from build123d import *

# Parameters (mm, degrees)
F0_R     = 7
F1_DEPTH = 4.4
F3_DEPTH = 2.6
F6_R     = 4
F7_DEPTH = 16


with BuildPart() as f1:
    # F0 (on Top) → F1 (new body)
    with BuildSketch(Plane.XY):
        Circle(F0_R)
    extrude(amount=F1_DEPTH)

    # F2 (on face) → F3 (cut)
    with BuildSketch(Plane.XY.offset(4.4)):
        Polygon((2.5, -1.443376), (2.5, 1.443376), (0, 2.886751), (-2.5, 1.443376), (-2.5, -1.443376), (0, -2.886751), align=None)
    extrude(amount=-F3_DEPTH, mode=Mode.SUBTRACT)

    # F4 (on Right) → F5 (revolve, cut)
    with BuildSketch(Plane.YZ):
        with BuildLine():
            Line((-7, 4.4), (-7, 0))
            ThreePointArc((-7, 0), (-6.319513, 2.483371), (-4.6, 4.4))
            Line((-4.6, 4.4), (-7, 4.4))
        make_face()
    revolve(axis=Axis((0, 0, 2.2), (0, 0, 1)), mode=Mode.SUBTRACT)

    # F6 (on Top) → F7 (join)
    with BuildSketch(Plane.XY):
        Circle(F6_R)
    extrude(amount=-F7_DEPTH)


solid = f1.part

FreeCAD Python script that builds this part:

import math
import FreeCAD as App
import Part
import Sketcher

V = App.Vector
Q = App.Units.Quantity

doc = App.newDocument("Part")
body = doc.addObject("PartDesign::Body", "Body")

# Sketch on XY plane
sketch1 = body.newObject("Sketcher::SketchObject", "Sketch")
sketch1.AttachmentSupport = (doc.getObject("XY_Plane"), [""])
sketch1.MapMode = "FlatFace"
sketch1.addGeometry(Part.Circle(V(0, 0, 0), V(0, 0, 1), 7), False)
sketch1.addConstraint(Sketcher.Constraint("Coincident", 0, 3, -1, 1))
sketch1.addConstraint(Sketcher.Constraint("Diameter", 0, Q("14 mm")))
pad1 = body.newObject("PartDesign::Pad", "Pad")
pad1.Profile = sketch1
pad1.Length = 4.4

# Sketch on XY plane
sketch2 = body.newObject("Sketcher::SketchObject", "Sketch001")
sketch2.AttachmentSupport = (doc.getObject("XY_Plane"), [""])
sketch2.MapMode = "FlatFace"
sketch2.AttachmentOffset = App.Placement(V(0, 0, 4.4), App.Rotation())
sketch2.addGeometry(Part.LineSegment(V(2.5, -1.4, 0), V(2.5, 1.4, 0)), False)
sketch2.addGeometry(Part.LineSegment(V(2.5, 1.4, 0), V(0, 2.9, 0)), False)
sketch2.addGeometry(Part.LineSegment(V(0, 2.9, 0), V(-2.5, 1.4, 0)), False)
sketch2.addGeometry(Part.LineSegment(V(-2.5, 1.4, 0), V(-2.5, -1.4, 0)), False)
sketch2.addGeometry(Part.LineSegment(V(-2.5, -1.4, 0), V(0, -2.9, 0)), False)
sketch2.addGeometry(Part.LineSegment(V(0, -2.9, 0), V(2.5, -1.4, 0)), False)
sketch2.addConstraint(Sketcher.Constraint("Coincident", 0, 2, 1, 1))
sketch2.addConstraint(Sketcher.Constraint("Coincident", 1, 2, 2, 1))
sketch2.addConstraint(Sketcher.Constraint("Coincident", 2, 2, 3, 1))
sketch2.addConstraint(Sketcher.Constraint("Coincident", 3, 2, 4, 1))
sketch2.addConstraint(Sketcher.Constraint("Coincident", 4, 2, 5, 1))
sketch2.addConstraint(Sketcher.Constraint("Coincident", 5, 2, 0, 1))
sketch2.addConstraint(Sketcher.Constraint("Vertical", 0))
sketch2.addConstraint(Sketcher.Constraint("Vertical", 3))
sketch2.addConstraint(Sketcher.Constraint("Symmetric", 0, 2, 3, 2, -1, 1))
sketch2.addConstraint(Sketcher.Constraint("Symmetric", 1, 2, 4, 2, -1, 1))
sketch2.addConstraint(Sketcher.Constraint("PointOnObject", 1, 2, -2))
sketch2.addConstraint(Sketcher.Constraint("Parallel", 2, 5))
sketch2.addConstraint(Sketcher.Constraint("Horizontal", 0, 2, 2, 2))
sketch2.addConstraint(Sketcher.Constraint("Angle", 1, Q("150.000012 deg")))
sketch2.addConstraint(Sketcher.Constraint("DistanceX", 2, 2, 0, 2, Q("5 mm")))
sketch2.addConstraint(Sketcher.Constraint("DistanceY", 0, 1, 0, 2, Q("2.886752 mm")))
pocket1 = body.newObject("PartDesign::Pocket", "Pocket")
pocket1.Profile = sketch2
pocket1.Length = 2.6

# Sketch on YZ plane
sketch3 = body.newObject("Sketcher::SketchObject", "Sketch002")
sketch3.AttachmentSupport = (doc.getObject("YZ_Plane"), [""])
sketch3.MapMode = "FlatFace"
sketch3.addGeometry(Part.LineSegment(V(-7, 4.4, 0), V(-7, 0, 0)), False)
sketch3.addGeometry(Part.ArcOfCircle(Part.Circle(V(-1.4, -0.2, 0), V(0, 0, 1), 5.6), math.radians(125), math.radians(178)), False)
sketch3.addGeometry(Part.LineSegment(V(-4.6, 4.4, 0), V(-7, 4.4, 0)), False)
sketch3.addConstraint(Sketcher.Constraint("Coincident", 0, 2, 1, 2))
sketch3.addConstraint(Sketcher.Constraint("Coincident", 1, 1, 2, 1))
sketch3.addConstraint(Sketcher.Constraint("Coincident", 2, 2, 0, 1))
sketch3.addConstraint(Sketcher.Constraint("Vertical", 0))
sketch3.addConstraint(Sketcher.Constraint("Horizontal", 2))
sketch3.addConstraint(Sketcher.Constraint("PointOnObject", 0, 2, -1))
sketch3.addConstraint(Sketcher.Constraint("DistanceX", 2, 2, 2, 1, Q("2.4 mm")))
sketch3.addConstraint(Sketcher.Constraint("DistanceY", 0, 2, 0, 1, Q("4.4 mm")))
sketch3.addConstraint(Sketcher.Constraint("DistanceX", 0, 2, -1, 1, Q("7 mm")))
sketch3.addConstraint(Sketcher.Constraint("Radius", 1, Q("5.601992 mm")))
groove = body.newObject("PartDesign::Groove", "Groove")
groove.Profile = sketch3
groove.ReferenceAxis = (sketch3, ["V_Axis"])
groove.Angle = 360

# Sketch on XY plane
sketch4 = body.newObject("Sketcher::SketchObject", "Sketch003")
sketch4.AttachmentSupport = (doc.getObject("XY_Plane"), [""])
sketch4.MapMode = "FlatFace"
sketch4.addGeometry(Part.Circle(V(0, 0, 0), V(0, 0, 1), 4), False)
sketch4.addConstraint(Sketcher.Constraint("Coincident", 0, 3, -1, 1))
sketch4.addConstraint(Sketcher.Constraint("Diameter", 0, Q("8 mm")))
pad2 = body.newObject("PartDesign::Pad", "Pad001")
pad2.Profile = sketch4
pad2.Length = 16
pad2.Reversed = True

doc.recompute()
